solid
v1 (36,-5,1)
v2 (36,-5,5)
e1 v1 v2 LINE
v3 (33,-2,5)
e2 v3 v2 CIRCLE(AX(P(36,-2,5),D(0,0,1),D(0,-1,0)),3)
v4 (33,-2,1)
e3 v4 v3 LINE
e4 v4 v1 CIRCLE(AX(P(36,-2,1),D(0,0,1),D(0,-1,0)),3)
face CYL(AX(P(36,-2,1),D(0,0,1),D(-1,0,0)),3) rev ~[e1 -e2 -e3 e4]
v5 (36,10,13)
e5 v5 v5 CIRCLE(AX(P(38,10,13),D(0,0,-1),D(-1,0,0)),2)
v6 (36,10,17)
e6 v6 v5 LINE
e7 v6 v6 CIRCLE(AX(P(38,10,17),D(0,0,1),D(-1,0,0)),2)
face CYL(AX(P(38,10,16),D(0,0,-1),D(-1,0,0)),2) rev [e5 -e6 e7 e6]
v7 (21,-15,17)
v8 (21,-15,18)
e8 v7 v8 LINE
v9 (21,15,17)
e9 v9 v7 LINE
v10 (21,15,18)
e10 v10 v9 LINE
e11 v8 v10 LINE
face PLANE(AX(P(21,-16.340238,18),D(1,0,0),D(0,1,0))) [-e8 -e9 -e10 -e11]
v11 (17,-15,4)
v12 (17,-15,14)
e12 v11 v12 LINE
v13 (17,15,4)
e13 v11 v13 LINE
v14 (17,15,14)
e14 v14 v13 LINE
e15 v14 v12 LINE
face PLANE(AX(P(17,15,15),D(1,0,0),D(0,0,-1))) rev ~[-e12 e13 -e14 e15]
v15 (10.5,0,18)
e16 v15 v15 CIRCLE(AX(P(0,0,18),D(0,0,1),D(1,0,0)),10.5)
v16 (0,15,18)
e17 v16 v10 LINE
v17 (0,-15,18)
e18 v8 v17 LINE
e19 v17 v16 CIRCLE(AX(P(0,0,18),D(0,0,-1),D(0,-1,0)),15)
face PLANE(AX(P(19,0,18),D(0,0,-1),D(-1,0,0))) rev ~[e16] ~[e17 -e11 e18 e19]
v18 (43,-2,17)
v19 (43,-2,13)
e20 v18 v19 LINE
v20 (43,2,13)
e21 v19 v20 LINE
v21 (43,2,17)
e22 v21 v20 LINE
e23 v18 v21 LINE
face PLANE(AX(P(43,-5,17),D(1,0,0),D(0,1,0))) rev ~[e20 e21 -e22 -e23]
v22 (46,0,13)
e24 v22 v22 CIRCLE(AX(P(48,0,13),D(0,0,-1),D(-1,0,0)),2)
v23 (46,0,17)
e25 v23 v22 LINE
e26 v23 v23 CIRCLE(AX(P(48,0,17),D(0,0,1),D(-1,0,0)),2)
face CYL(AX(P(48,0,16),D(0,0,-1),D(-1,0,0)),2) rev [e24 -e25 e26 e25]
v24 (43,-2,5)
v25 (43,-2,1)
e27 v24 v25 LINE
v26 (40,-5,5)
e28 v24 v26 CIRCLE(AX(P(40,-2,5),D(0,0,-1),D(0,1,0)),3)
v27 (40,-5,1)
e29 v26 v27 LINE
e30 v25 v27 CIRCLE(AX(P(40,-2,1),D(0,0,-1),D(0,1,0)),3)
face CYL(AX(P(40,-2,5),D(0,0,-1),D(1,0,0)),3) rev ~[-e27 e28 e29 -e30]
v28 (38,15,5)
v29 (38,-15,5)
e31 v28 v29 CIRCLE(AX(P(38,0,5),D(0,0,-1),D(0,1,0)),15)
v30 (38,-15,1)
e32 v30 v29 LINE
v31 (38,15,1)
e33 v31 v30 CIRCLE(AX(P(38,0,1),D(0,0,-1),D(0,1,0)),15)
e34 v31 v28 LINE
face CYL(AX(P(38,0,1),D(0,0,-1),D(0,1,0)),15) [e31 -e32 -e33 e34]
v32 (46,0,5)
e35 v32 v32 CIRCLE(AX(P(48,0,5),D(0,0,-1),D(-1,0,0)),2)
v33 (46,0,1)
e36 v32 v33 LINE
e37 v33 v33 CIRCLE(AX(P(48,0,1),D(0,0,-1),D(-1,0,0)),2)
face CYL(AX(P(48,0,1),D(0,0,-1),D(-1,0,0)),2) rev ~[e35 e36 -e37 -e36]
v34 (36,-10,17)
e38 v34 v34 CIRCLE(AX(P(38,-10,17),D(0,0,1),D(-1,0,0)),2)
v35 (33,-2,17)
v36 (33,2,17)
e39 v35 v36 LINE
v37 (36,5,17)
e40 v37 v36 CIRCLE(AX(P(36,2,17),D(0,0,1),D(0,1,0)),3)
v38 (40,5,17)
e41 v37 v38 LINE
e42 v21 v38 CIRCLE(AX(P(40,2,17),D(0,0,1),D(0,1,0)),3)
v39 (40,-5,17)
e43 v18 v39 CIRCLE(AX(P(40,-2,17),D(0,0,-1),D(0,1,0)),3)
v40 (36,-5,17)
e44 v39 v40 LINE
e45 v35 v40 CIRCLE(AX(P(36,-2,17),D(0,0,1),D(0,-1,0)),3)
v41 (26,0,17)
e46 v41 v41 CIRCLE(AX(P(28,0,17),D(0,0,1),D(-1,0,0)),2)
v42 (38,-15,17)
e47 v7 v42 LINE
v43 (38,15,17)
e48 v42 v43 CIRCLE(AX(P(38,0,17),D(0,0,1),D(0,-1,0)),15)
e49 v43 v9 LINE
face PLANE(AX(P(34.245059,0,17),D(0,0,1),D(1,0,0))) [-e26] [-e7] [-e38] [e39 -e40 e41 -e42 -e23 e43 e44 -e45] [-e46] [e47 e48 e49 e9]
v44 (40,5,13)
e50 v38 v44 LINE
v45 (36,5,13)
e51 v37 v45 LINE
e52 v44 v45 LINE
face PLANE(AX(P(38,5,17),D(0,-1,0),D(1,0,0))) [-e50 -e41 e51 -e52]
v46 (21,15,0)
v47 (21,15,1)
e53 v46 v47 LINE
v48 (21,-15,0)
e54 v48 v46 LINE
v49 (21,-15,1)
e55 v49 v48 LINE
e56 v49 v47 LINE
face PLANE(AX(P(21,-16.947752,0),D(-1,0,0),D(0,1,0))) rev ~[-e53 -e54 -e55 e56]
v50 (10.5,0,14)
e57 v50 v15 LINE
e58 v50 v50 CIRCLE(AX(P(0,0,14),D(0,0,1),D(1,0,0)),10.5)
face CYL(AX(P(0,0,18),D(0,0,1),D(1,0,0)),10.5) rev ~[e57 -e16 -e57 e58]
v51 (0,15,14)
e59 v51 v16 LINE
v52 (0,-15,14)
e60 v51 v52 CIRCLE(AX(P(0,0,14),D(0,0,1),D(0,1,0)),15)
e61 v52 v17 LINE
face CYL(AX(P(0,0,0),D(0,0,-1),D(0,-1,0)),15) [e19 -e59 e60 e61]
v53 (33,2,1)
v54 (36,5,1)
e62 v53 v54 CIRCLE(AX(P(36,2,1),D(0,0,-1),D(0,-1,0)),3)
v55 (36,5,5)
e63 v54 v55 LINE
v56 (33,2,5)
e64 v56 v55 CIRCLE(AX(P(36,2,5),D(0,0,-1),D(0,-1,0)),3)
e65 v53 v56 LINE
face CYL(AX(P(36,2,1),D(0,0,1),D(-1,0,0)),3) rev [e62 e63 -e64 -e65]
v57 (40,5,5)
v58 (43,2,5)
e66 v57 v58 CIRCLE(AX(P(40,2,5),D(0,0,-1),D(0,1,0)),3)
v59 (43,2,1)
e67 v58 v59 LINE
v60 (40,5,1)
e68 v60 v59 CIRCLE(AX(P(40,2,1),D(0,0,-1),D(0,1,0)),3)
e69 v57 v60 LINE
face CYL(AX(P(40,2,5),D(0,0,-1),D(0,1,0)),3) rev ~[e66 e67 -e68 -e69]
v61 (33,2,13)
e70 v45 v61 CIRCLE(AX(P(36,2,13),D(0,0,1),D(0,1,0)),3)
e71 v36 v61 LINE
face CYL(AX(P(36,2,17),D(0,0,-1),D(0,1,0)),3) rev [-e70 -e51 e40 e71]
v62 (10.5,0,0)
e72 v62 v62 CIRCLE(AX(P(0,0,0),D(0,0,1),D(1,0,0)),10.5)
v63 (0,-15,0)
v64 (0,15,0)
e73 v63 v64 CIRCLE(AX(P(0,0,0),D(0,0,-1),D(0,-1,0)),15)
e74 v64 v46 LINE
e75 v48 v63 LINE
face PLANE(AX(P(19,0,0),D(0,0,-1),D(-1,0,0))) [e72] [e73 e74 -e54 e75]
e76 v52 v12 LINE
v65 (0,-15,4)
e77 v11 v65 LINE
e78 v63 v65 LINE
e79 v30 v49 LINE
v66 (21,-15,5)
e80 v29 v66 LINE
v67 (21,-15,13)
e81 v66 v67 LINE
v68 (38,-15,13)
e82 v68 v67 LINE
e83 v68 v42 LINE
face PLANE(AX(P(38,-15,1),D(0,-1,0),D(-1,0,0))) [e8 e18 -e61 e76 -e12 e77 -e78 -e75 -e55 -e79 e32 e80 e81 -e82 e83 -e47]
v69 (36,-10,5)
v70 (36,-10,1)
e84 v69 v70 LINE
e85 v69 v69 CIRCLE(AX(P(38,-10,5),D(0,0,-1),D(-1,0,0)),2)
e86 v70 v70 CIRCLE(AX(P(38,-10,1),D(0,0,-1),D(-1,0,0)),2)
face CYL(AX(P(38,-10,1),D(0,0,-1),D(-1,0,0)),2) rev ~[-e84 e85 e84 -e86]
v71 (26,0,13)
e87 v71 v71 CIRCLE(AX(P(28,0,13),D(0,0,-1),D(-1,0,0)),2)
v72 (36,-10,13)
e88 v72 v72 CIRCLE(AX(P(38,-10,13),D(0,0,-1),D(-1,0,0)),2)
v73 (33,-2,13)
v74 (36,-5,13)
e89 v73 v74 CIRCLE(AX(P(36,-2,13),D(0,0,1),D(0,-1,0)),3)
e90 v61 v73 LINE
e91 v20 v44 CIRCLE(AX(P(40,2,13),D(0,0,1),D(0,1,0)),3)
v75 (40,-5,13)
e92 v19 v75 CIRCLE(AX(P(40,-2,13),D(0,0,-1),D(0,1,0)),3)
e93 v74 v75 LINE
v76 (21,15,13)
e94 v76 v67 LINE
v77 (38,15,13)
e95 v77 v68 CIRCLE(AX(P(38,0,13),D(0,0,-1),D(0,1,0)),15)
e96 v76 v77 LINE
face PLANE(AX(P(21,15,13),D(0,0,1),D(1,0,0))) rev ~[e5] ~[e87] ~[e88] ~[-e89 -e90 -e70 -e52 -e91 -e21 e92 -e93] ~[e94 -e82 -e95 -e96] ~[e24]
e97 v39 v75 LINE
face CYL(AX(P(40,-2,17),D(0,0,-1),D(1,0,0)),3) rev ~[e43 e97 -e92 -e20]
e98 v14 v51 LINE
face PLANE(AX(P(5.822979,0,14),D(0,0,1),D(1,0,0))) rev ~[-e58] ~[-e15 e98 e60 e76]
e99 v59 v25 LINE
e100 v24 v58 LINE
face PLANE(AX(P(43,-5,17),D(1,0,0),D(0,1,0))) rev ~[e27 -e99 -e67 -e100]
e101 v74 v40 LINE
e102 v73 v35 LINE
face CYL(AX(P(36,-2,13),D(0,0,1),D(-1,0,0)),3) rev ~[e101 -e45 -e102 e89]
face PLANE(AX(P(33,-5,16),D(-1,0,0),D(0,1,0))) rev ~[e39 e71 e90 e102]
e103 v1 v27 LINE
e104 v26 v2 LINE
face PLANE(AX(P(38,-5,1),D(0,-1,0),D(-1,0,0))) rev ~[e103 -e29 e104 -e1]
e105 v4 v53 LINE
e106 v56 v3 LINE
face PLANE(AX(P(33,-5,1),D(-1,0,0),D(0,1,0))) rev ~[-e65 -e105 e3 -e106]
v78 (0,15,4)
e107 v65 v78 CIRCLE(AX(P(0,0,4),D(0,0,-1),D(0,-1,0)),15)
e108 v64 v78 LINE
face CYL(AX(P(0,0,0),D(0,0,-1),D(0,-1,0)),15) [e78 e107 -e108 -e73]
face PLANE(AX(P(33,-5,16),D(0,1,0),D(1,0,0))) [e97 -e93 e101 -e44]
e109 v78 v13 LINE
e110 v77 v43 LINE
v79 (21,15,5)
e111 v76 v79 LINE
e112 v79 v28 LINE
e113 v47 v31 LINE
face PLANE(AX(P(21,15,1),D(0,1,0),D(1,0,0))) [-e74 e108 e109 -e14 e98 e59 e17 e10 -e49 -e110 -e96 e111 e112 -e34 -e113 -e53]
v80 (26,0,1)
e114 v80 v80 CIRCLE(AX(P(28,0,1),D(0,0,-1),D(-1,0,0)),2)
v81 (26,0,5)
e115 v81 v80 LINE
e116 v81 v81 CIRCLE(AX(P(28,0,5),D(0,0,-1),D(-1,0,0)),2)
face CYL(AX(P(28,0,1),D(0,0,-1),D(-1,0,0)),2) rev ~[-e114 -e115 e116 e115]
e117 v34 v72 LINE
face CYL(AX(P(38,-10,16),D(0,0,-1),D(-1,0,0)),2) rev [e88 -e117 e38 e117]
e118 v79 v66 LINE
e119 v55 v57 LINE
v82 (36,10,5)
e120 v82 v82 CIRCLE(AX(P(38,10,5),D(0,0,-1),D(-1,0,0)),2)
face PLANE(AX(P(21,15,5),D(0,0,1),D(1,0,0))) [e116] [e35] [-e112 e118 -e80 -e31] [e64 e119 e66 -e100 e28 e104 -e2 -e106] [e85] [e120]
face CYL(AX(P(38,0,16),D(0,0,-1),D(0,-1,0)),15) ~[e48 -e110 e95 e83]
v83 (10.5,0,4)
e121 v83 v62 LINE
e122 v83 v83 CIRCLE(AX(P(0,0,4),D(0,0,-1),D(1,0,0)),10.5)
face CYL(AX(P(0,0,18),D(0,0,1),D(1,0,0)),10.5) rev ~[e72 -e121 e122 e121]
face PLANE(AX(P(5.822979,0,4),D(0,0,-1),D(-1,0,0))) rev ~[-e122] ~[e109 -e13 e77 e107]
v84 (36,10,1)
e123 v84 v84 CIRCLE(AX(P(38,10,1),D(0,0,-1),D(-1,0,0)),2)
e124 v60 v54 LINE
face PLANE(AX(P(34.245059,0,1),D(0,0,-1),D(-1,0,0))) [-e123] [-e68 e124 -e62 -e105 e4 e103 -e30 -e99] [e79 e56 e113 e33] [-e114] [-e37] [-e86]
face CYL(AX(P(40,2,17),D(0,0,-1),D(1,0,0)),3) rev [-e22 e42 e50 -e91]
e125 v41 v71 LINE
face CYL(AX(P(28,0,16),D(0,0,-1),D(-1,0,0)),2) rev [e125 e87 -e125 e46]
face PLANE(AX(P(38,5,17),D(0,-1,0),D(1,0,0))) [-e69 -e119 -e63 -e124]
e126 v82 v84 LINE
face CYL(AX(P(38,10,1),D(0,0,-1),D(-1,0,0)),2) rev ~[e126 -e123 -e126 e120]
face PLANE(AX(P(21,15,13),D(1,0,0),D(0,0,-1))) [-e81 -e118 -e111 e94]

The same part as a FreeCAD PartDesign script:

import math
import FreeCAD as App
import Part
import Sketcher
from FreeCAD import Vector


def edges_at(feature, points):
    """Names of the edges that pass closest to the given points."""
    edges = feature.Shape.Edges
    near = lambda p: min(range(len(edges)), key=lambda i: edges[i].distToShape(Part.Vertex(*p))[0])
    return sorted({f"Edge{near(p) + 1}" for p in points})


def add_polygon(sketch, points):
    """Adds a closed chain of lines whose ends are joined by coincident constraints."""
    first, n = sketch.GeometryCount, len(points)
    for a, b in zip(points, points[1:] + points[:1]):
        sketch.addGeometry(Part.LineSegment(App.Vector(*a, 0), App.Vector(*b, 0)), False)
    for i in range(n):
        sketch.addConstraint(Sketcher.Constraint("Coincident", first + i, 2, first + (i + 1) % n, 1))

doc = App.newDocument("Part")
params = doc.addObject("Spreadsheet::Sheet", "Params")
for row, (alias, value) in enumerate([
    ("sketch1_radius", "15 mm"),
    ("sketch1_width", "38 mm"),
    ("pad1_length", "18 mm"),
    ("sketch2_width", "32 mm"),
    ("sketch2_height", "12 mm"),
    ("pocket1_length", "34 mm"),
    ("sketch3_width", "32 mm"),
    ("sketch3_height", "8 mm"),
    ("pocket2_length", "34 mm"),
    ("sketch4_diameter", "21 mm"),
    ("pocket3_length", "34 mm"),
    ("pocket4_length", "2 mm"),
    ("pocket5_length", "2 mm"),
    ("sketch7_diameter", "4 mm"),
    ("pocket6_length", "20 mm"),
    ("sketch8_width", "5 mm"),
    ("sketch8_height", "10 mm"),
    ("pocket7_length", "20 mm"),
    ("sketch9_diameter", "21 mm"),
    ("sketch9_radius", "15 mm"),
    ("sketch9_width", "21 mm"),
    ("pad2_length", "4 mm"),
    ("sketch10_diameter", "21 mm"),
    ("sketch10_radius", "15 mm"),
    ("sketch10_width", "21 mm"),
    ("pad3_length", "4 mm"),
    ("sketch11_diameter", "4 mm"),
    ("sketch11_radius", "15 mm"),
    ("sketch11_width", "17 mm"),
    ("sketch11_width2", "5 mm"),
    ("sketch11_height", "10 mm"),
    ("pad4_length", "1 mm"),
    ("sketch12_diameter", "4 mm"),
    ("sketch12_radius", "15 mm"),
    ("sketch12_width", "17 mm"),
    ("sketch12_width2", "5 mm"),
    ("sketch12_height", "10 mm"),
    ("pad5_length", "1 mm"),
    ("sketch13_width", "5 mm"),
    ("sketch13_height", "10 mm"),
    ("pocket8_length", "19 mm"),
    ("fillet_radius", "3 mm"),
], start=1):
    params.set(f"A{row}", alias)
    params.set(f"B{row}", "=" + value)
    params.setAlias(f"B{row}", alias)

body = doc.addObject("PartDesign::Body", "Body")

sketch1 = doc.addObject("Sketcher::SketchObject", "Sketch")
body.addObject(sketch1)
sketch1.AttachmentSupport = (doc.XY_Plane, [""])
sketch1.MapMode = "FlatFace"
sketch1.addGeometry(Part.LineSegment(Vector(38, 15, 0), Vector(0, 15, 0)), False)
sketch1.addGeometry(Part.ArcOfCircle(Part.Circle(Vector(0, 0, 0), Vector(0, 0, 1), 15), math.radians(90), math.radians(270)), False)
sketch1.addGeometry(Part.LineSegment(Vector(0, -15, 0), Vector(38, -15, 0)), False)
sketch1.addGeometry(Part.ArcOfCircle(Part.Circle(Vector(38, 0, 0), Vector(0, 0, 1), 15), math.radians(-90), math.radians(90)), False)
sketch1.addConstraint(Sketcher.Constraint("Tangent", 0, 2, 1, 1))
sketch1.addConstraint(Sketcher.Constraint("Tangent", 1, 2, 2, 1))
sketch1.addConstraint(Sketcher.Constraint("Tangent", 2, 2, 3, 1))
sketch1.addConstraint(Sketcher.Constraint("Tangent", 3, 2, 0, 1))
sketch1.addConstraint(Sketcher.Constraint("Horizontal", 0))
sketch1.addConstraint(Sketcher.Constraint("Horizontal", 2))
sketch1.addConstraint(Sketcher.Constraint("Coincident", 1, 3, -1, 1))
sketch1.addConstraint(Sketcher.Constraint("Radius", 1, 15.0))
sketch1.addConstraint(Sketcher.Constraint("DistanceX", 0, 2, 0, 1, 38.0))
sketch1.setExpression("Constraints[7]", "Params.sketch1_radius")
sketch1.setExpression("Constraints[8]", "Params.sketch1_width")
pad1 = doc.addObject("PartDesign::Pad", "Pad")
body.addObject(pad1)
pad1.Profile = sketch1
pad1.setExpression("Length", "Params.pad1_length")

sketch2 = doc.addObject("Sketcher::SketchObject", "Sketch001")
body.addObject(sketch2)
sketch2.AttachmentSupport = (doc.XZ_Plane, [""])
sketch2.MapMode = "FlatFace"
sketch2.AttachmentOffset = App.Placement(Vector(0, 0, -15), App.Rotation())
add_polygon(sketch2, [(-15, 3), (-15, 15), (17, 15), (17, 3)])
sketch2.addConstraint(Sketcher.Constraint("Vertical", 0))
sketch2.addConstraint(Sketcher.Constraint("Horizontal", 1))
sketch2.addConstraint(Sketcher.Constraint("Vertical", 2))
sketch2.addConstraint(Sketcher.Constraint("Horizontal", 3))
sketch2.addConstraint(Sketcher.Constraint("DistanceX", 1, 1, 1, 2, 32.0))
sketch2.addConstraint(Sketcher.Constraint("DistanceY", 0, 1, 0, 2, 12.0))
sketch2.addConstraint(Sketcher.Constraint("DistanceX", 0, 2, -1, 1, 15.0))
sketch2.addConstraint(Sketcher.Constraint("DistanceY", -1, 1, 0, 2, 15.0))
sketch2.setExpression("Constraints[8]", "Params.sketch2_width")
sketch2.setExpression("Constraints[9]", "Params.sketch2_height")
pocket1 = doc.addObject("PartDesign::Pocket", "Pocket")
body.addObject(pocket1)
pocket1.Profile = sketch2
pocket1.setExpression("Length", "Params.pocket1_length")
pocket1.Reversed = True

sketch3 = doc.addObject("Sketcher::SketchObject", "Sketch002")
body.addObject(sketch3)
sketch3.AttachmentSupport = (doc.XZ_Plane, [""])
sketch3.MapMode = "FlatFace"
sketch3.AttachmentOffset = App.Placement(Vector(0, 0, -15), App.Rotation())
add_polygon(sketch3, [(21, 5), (21, 13), (53, 13), (53, 5)])
sketch3.addConstraint(Sketcher.Constraint("Vertical", 0))
sketch3.addConstraint(Sketcher.Constraint("Horizontal", 1))
sketch3.addConstraint(Sketcher.Constraint("Vertical", 2))
sketch3.addConstraint(Sketcher.Constraint("Horizontal", 3))
sketch3.addConstraint(Sketcher.Constraint("DistanceX", 1, 1, 1, 2, 32.0))
sketch3.addConstraint(Sketcher.Constraint("DistanceY", 0, 1, 0, 2, 8.0))
sketch3.addConstraint(Sketcher.Constraint("DistanceX", -1, 1, 0, 2, 21.0))
sketch3.addConstraint(Sketcher.Constraint("DistanceY", -1, 1, 0, 2, 13.0))
sketch3.setExpression("Constraints[8]", "Params.sketch3_width")
sketch3.setExpression("Constraints[9]", "Params.sketch3_height")
pocket2 = doc.addObject("PartDesign::Pocket", "Pocket001")
body.addObject(pocket2)
pocket2.Profile = sketch3
pocket2.setExpression("Length", "Params.pocket2_length")
pocket2.Reversed = True

sketch4 = doc.addObject("Sketcher::SketchObject", "Sketch003")
body.addObject(sketch4)
sketch4.AttachmentSupport = (doc.XY_Plane, [""])
sketch4.MapMode = "FlatFace"
sketch4.AttachmentOffset = App.Placement(Vector(0, 0, 18), App.Rotation())
sketch4.addGeometry(Part.Circle(Vector(0, 0, 0), Vector(0, 0, 1), 10.5), False)
sketch4.addConstraint(Sketcher.Constraint("Coincident", 0, 3, -1, 1))
sketch4.addConstraint(Sketcher.Constraint("Diameter", 0, 21.0))
sketch4.setExpression("Constraints[1]", "Params.sketch4_diameter")
pocket3 = doc.addObject("PartDesign::Pocket", "Pocket002")
body.addObject(pocket3)
pocket3.Profile = sketch4
pocket3.setExpression("Length", "Params.pocket3_length")

sketch5 = doc.addObject("Sketcher::SketchObject", "Sketch004")
body.addObject(sketch5)
sketch5.AttachmentSupport = (doc.XY_Plane, [""])
sketch5.MapMode = "FlatFace"
sketch5.AttachmentOffset = App.Placement(Vector(0, 0, 18), App.Rotation())
add_polygon(sketch5, [(21, 15), (21, -16.340238), (57.797592, -16.340238), (57.797592, 15)])
sketch5.addConstraint(Sketcher.Constraint("Vertical", 0))
sketch5.addConstraint(Sketcher.Constraint("Horizontal", 1))
sketch5.addConstraint(Sketcher.Constraint("Vertical", 2))
sketch5.addConstraint(Sketcher.Constraint("Horizontal", 3))
sketch5.addConstraint(Sketcher.Constraint("DistanceX", -1, 1, 0, 2, 21.0))
sketch5.addConstraint(Sketcher.Constraint("DistanceY", -1, 1, 2, 2, 15.0))
sketch5.addConstraint(Sketcher.Constraint("DistanceX", 1, 1, 1, 2, 36.797592))
sketch5.addConstraint(Sketcher.Constraint("DistanceY", 0, 2, 0, 1, 31.340238))
pocket4 = doc.addObject("PartDesign::Pocket", "Pocket003")
body.addObject(pocket4)
pocket4.Profile = sketch5
pocket4.setExpression("Length", "Params.pocket4_length")

sketch6 = doc.addObject("Sketcher::SketchObject", "Sketch005")
body.addObject(sketch6)
sketch6.AttachmentSupport = (doc.XY_Plane, [""])
sketch6.MapMode = "FlatFace"
add_polygon(sketch6, [(69.194095, 15), (69.194095, -16.947752), (21, -16.947752), (21, 15)])
sketch6.addConstraint(Sketcher.Constraint("Vertical", 0))
sketch6.addConstraint(Sketcher.Constraint("Horizontal", 1))
sketch6.addConstraint(Sketcher.Constraint("Vertical", 2))
sketch6.addConstraint(Sketcher.Constraint("Horizontal", 3))
sketch6.addConstraint(Sketcher.Constraint("DistanceX", -1, 1, 1, 2, 21.0))
sketch6.addConstraint(Sketcher.Constraint("DistanceY", -1, 1, 2, 2, 15.0))
sketch6.addConstraint(Sketcher.Constraint("DistanceX", 1, 2, 1, 1, 48.194095))
sketch6.addConstraint(Sketcher.Constraint("DistanceY", 0, 2, 0, 1, 31.947752))
pocket5 = doc.addObject("PartDesign::Pocket", "Pocket004")
body.addObject(pocket5)
pocket5.Profile = sketch6
pocket5.setExpression("Length", "Params.pocket5_length")
pocket5.Reversed = True

sketch7 = doc.addObject("Sketcher::SketchObject", "Sketch006")
body.addObject(sketch7)
sketch7.AttachmentSupport = (doc.XY_Plane, [""])
sketch7.MapMode = "FlatFace"
sketch7.AttachmentOffset = App.Placement(Vector(0, 0, 2), App.Rotation())
sketch7.addGeometry(Part.Circle(Vector(48, 0, 0), Vector(0, 0, 1), 2), False)
sketch7.addGeometry(Part.Circle(Vector(38, 10, 0), Vector(0, 0, 1), 2), False)
sketch7.addGeometry(Part.Circle(Vector(28, 0, 0), Vector(0, 0, 1), 2), False)
sketch7.addGeometry(Part.Circle(Vector(38, -10, 0), Vector(0, 0, 1), 2), False)
sketch7.addConstraint(Sketcher.Constraint("Equal", 0, 1))
sketch7.addConstraint(Sketcher.Constraint("Equal", 1, 2))
sketch7.addConstraint(Sketcher.Constraint("Equal", 2, 3))
sketch7.addConstraint(Sketcher.Constraint("Symmetric", 1, 3, 3, 3, -1))
sketch7.addConstraint(Sketcher.Constraint("PointOnObject", 0, 3, -1))
sketch7.addConstraint(Sketcher.Constraint("PointOnObject", 2, 3, -1))
sketch7.addConstraint(Sketcher.Constraint("Diameter", 0, 4.0))
sketch7.addConstraint(Sketcher.Constraint("DistanceX", -1, 1, 0, 3, 48.0))
sketch7.addConstraint(Sketcher.Constraint("DistanceX", -1, 1, 1, 3, 38.0))
sketch7.addConstraint(Sketcher.Constraint("DistanceY", -1, 1, 1, 3, 10.0))
sketch7.addConstraint(Sketcher.Constraint("DistanceX", -1, 1, 2, 3, 28.0))
sketch7.setExpression("Constraints[6]", "Params.sketch7_diameter")
pocket6 = doc.addObject("PartDesign::Pocket", "Pocket005")
body.addObject(pocket6)
pocket6.Profile = sketch7
pocket6.setExpression("Length", "Params.pocket6_length")
pocket6.Reversed = True

sketch8 = doc.addObject("Sketcher::SketchObject", "Sketch007")
body.addObject(sketch8)
sketch8.AttachmentSupport = (doc.XY_Plane, [""])
sketch8.MapMode = "FlatFace"
sketch8.AttachmentOffset = App.Placement(Vector(0, 0, 2), App.Rotation())
add_polygon(sketch8, [(38, 5), (38, -5), (33, -5), (33, 5)])
sketch8.addConstraint(Sketcher.Constraint("Vertical", 0))
sketch8.addConstraint(Sketcher.Constraint("Horizontal", 1))
sketch8.addConstraint(Sketcher.Constraint("Vertical", 2))
sketch8.addConstraint(Sketcher.Constraint("Horizontal", 3))
sketch8.addConstraint(Sketcher.Constraint("DistanceX", 1, 2, 1, 1, 5.0))
sketch8.addConstraint(Sketcher.Constraint("DistanceY", 0, 2, 0, 1, 10.0))
sketch8.addConstraint(Sketcher.Constraint("DistanceX", -1, 1, 0, 2, 38.0))
sketch8.addConstraint(Sketcher.Constraint("DistanceY", 0, 2, -1, 1, 5.0))
sketch8.setExpression("Constraints[8]", "Params.sketch8_width")
sketch8.setExpression("Constraints[9]", "Params.sketch8_height")
pocket7 = doc.addObject("PartDesign::Pocket", "Pocket006")
body.addObject(pocket7)
pocket7.Profile = sketch8
pocket7.setExpression("Length", "Params.pocket7_length")
pocket7.Reversed = True

sketch9 = doc.addObject("Sketcher::SketchObject", "Sketch008")
body.addObject(sketch9)
sketch9.AttachmentSupport = (doc.XY_Plane, [""])
sketch9.MapMode = "FlatFace"
sketch9.addGeometry(Part.LineSegment(Vector(0, 15, 0), Vector(21, 15, 0)), False)
sketch9.addGeometry(Part.LineSegment(Vector(21, 15, 0), Vector(21, -15, 0)), False)
sketch9.addGeometry(Part.LineSegment(Vector(21, -15, 0), Vector(0, -15, 0)), False)
sketch9.addGeometry(Part.ArcOfCircle(Part.Circle(Vector(0, 0, 0), Vector(0, 0, 1), 15), math.radians(90), math.radians(270)), False)
sketch9.addGeometry(Part.Circle(Vector(0, 0, 0), Vector(0, 0, 1), 10.5), False)
sketch9.addConstraint(Sketcher.Constraint("Coincident", 0, 2, 1, 1))
sketch9.addConstraint(Sketcher.Constraint("Coincident", 1, 2, 2, 1))
sketch9.addConstraint(Sketcher.Constraint("Tangent", 2, 2, 3, 2))
sketch9.addConstraint(Sketcher.Constraint("Tangent", 3, 1, 0, 1))
sketch9.addConstraint(Sketcher.Constraint("Horizontal", 0))
sketch9.addConstraint(Sketcher.Constraint("Vertical", 1))
sketch9.addConstraint(Sketcher.Constraint("Horizontal", 2))
sketch9.addConstraint(Sketcher.Constraint("Coincident", 3, 3, -1, 1))
sketch9.addConstraint(Sketcher.Constraint("Coincident", 4, 3, -1, 1))
sketch9.addConstraint(Sketcher.Constraint("Diameter", 4, 21.0))
sketch9.addConstraint(Sketcher.Constraint("Radius", 3, 15.0))
sketch9.addConstraint(Sketcher.Constraint("DistanceX", 0, 1, 0, 2, 21.0))
sketch9.setExpression("Constraints[9]", "Params.sketch9_diameter")
sketch9.setExpression("Constraints[10]", "Params.sketch9_radius")
sketch9.setExpression("Constraints[11]", "Params.sketch9_width")
pad2 = doc.addObject("PartDesign::Pad", "Pad001")
body.addObject(pad2)
pad2.Profile = sketch9
pad2.setExpression("Length", "Params.pad2_length")

sketch10 = doc.addObject("Sketcher::SketchObject", "Sketch009")
body.addObject(sketch10)
sketch10.AttachmentSupport = (doc.XY_Plane, [""])
sketch10.MapMode = "FlatFace"
sketch10.AttachmentOffset = App.Placement(Vector(0, 0, 18), App.Rotation())
sketch10.addGeometry(Part.LineSegment(Vector(21, -15, 0), Vector(21, 15, 0)), False)
sketch10.addGeometry(Part.LineSegment(Vector(21, 15, 0), Vector(0, 15, 0)), False)
sketch10.addGeometry(Part.ArcOfCircle(Part.Circle(Vector(0, 0, 0), Vector(0, 0, 1), 15), math.radians(90), math.radians(270)), False)
sketch10.addGeometry(Part.LineSegment(Vector(0, -15, 0), Vector(21, -15, 0)), False)
sketch10.addGeometry(Part.Circle(Vector(0, 0, 0), Vector(0, 0, 1), 10.5), False)
sketch10.addConstraint(Sketcher.Constraint("Coincident", 0, 2, 1, 1))
sketch10.addConstraint(Sketcher.Constraint("Tangent", 1, 2, 2, 1))
sketch10.addConstraint(Sketcher.Constraint("Tangent", 2, 2, 3, 1))
sketch10.addConstraint(Sketcher.Constraint("Coincident", 3, 2, 0, 1))
sketch10.addConstraint(Sketcher.Constraint("Vertical", 0))
sketch10.addConstraint(Sketcher.Constraint("Horizontal", 1))
sketch10.addConstraint(Sketcher.Constraint("Horizontal", 3))
sketch10.addConstraint(Sketcher.Constraint("Coincident", 2, 3, -1, 1))
sketch10.addConstraint(Sketcher.Constraint("Coincident", 4, 3, -1, 1))
sketch10.addConstraint(Sketcher.Constraint("Diameter", 4, 21.0))
sketch10.addConstraint(Sketcher.Constraint("Radius", 2, 15.0))
sketch10.addConstraint(Sketcher.Constraint("DistanceX", 1, 2, 1, 1, 21.0))
sketch10.setExpression("Constraints[9]", "Params.sketch10_diameter")
sketch10.setExpression("Constraints[10]", "Params.sketch10_radius")
sketch10.setExpression("Constraints[11]", "Params.sketch10_width")
pad3 = doc.addObject("PartDesign::Pad", "Pad002")
body.addObject(pad3)
pad3.Profile = sketch10
pad3.setExpression("Length", "Params.pad3_length")
pad3.Reversed = True

sketch11 = doc.addObject("Sketcher::SketchObject", "Sketch010")
body.addObject(sketch11)
sketch11.AttachmentSupport = (doc.XY_Plane, [""])
sketch11.MapMode = "FlatFace"
sketch11.AttachmentOffset = App.Placement(Vector(0, 0, 16), App.Rotation())
sketch11.addGeometry(Part.LineSegment(Vector(21, -15, 0), Vector(38, -15, 0)), False)
sketch11.addGeometry(Part.ArcOfCircle(Part.Circle(Vector(38, 0, 0), Vector(0, 0, 1), 15), math.radians(-90), math.radians(90)), False)
sketch11.addGeometry(Part.LineSegment(Vector(38, 15, 0), Vector(21, 15, 0)), False)
sketch11.addGeometry(Part.LineSegment(Vector(21, 15, 0), Vector(21, -15, 0)), False)
sketch11.addGeometry(Part.Circle(Vector(38, -10, 0), Vector(0, 0, 1), 2), False)
sketch11.addGeometry(Part.Circle(Vector(28, 0, 0), Vector(0, 0, 1), 2), False)
add_polygon(sketch11, [(38, -5), (33, -5), (33, 5), (38, 5)])
sketch11.addGeometry(Part.Circle(Vector(48, 0, 0), Vector(0, 0, 1), 2), False)
sketch11.addGeometry(Part.Circle(Vector(38, 10, 0), Vector(0, 0, 1), 2), False)
sketch11.addConstraint(Sketcher.Constraint("Tangent", 0, 2, 1, 1))
sketch11.addConstraint(Sketcher.Constraint("Tangent", 1, 2, 2, 1))
sketch11.addConstraint(Sketcher.Constraint("Coincident", 2, 2, 3, 1))
sketch11.addConstraint(Sketcher.Constraint("Coincident", 3, 2, 0, 1))
sketch11.addConstraint(Sketcher.Constraint("Horizontal", 0))
sketch11.addConstraint(Sketcher.Constraint("Horizontal", 2))
sketch11.addConstraint(Sketcher.Constraint("Vertical", 3))
sketch11.addConstraint(Sketcher.Constraint("Horizontal", 6))
sketch11.addConstraint(Sketcher.Constraint("Vertical", 7))
sketch11.addConstraint(Sketcher.Constraint("Horizontal", 8))
sketch11.addConstraint(Sketcher.Constraint("Vertical", 9))
sketch11.addConstraint(Sketcher.Constraint("Equal", 4, 5))
sketch11.addConstraint(Sketcher.Constraint("Equal", 5, 10))
sketch11.addConstraint(Sketcher.Constraint("Equal", 10, 11))
sketch11.addConstraint(Sketcher.Constraint("Symmetric", 4, 3, 11, 3, -1))
sketch11.addConstraint(Sketcher.Constraint("PointOnObject", 1, 3, -1))
sketch11.addConstraint(Sketcher.Constraint("PointOnObject", 5, 3, -1))
sketch11.addConstraint(Sketcher.Constraint("PointOnObject", 10, 3, -1))
sketch11.addConstraint(Sketcher.Constraint("Vertical", 1, 3, 4, 3))
sketch11.addConstraint(Sketcher.Constraint("Vertical", 1, 2, 8, 2))
sketch11.addConstraint(Sketcher.Constraint("Diameter", 4, 4.0))
sketch11.addConstraint(Sketcher.Constraint("Radius", 1, 15.0))
sketch11.addConstraint(Sketcher.Constraint("DistanceX", 0, 1, 0, 2, 17.0))
sketch11.addConstraint(Sketcher.Constraint("DistanceX", 6, 2, 6, 1, 5.0))
sketch11.addConstraint(Sketcher.Constraint("DistanceY", 7, 1, 7, 2, 10.0))
sketch11.addConstraint(Sketcher.Constraint("DistanceX", -1, 1, 1, 3, 38.0))
sketch11.addConstraint(Sketcher.Constraint("DistanceY", 4, 3, -1, 1, 10.0))
sketch11.addConstraint(Sketcher.Constraint("DistanceX", -1, 1, 5, 3, 28.0))
sketch11.addConstraint(Sketcher.Constraint("DistanceX", -1, 1, 10, 3, 48.0))
sketch11.addConstraint(Sketcher.Constraint("DistanceY", 6, 2, -1, 1, 5.0))
sketch11.setExpression("Constraints[24]", "Params.sketch11_diameter")
sketch11.setExpression("Constraints[25]", "Params.sketch11_radius")
sketch11.setExpression("Constraints[26]", "Params.sketch11_width")
sketch11.setExpression("Constraints[27]", "Params.sketch11_width2")
sketch11.setExpression("Constraints[28]", "Params.sketch11_height")
pad4 = doc.addObject("PartDesign::Pad", "Pad003")
body.addObject(pad4)
pad4.Profile = sketch11
pad4.setExpression("Length", "Params.pad4_length")

sketch12 = doc.addObject("Sketcher::SketchObject", "Sketch011")
body.addObject(sketch12)
sketch12.AttachmentSupport = (doc.XY_Plane, [""])
sketch12.MapMode = "FlatFace"
sketch12.AttachmentOffset = App.Placement(Vector(0, 0, 1), App.Rotation())
sketch12.addGeometry(Part.LineSegment(Vector(21, -15, 0), Vector(21, 15, 0)), False)
sketch12.addGeometry(Part.LineSegment(Vector(21, 15, 0), Vector(38, 15, 0)), False)
sketch12.addGeometry(Part.ArcOfCircle(Part.Circle(Vector(38, 0, 0), Vector(0, 0, 1), 15), math.radians(-90), math.radians(90)), False)
sketch12.addGeometry(Part.LineSegment(Vector(38, -15, 0), Vector(21, -15, 0)), False)
sketch12.addGeometry(Part.Circle(Vector(38, -10, 0), Vector(0, 0, 1), 2), False)
sketch12.addGeometry(Part.Circle(Vector(48, 0, 0), Vector(0, 0, 1), 2), False)
add_polygon(sketch12, [(33, -5), (38, -5), (38, 5), (33, 5)])
sketch12.addGeometry(Part.Circle(Vector(28, 0, 0), Vector(0, 0, 1), 2), False)
sketch12.addGeometry(Part.Circle(Vector(38, 10, 0), Vector(0, 0, 1), 2), False)
sketch12.addConstraint(Sketcher.Constraint("Coincident", 0, 2, 1, 1))
sketch12.addConstraint(Sketcher.Constraint("Tangent", 1, 2, 2, 2))
sketch12.addConstraint(Sketcher.Constraint("Tangent", 2, 1, 3, 1))
sketch12.addConstraint(Sketcher.Constraint("Coincident", 3, 2, 0, 1))
sketch12.addConstraint(Sketcher.Constraint("Vertical", 0))
sketch12.addConstraint(Sketcher.Constraint("Horizontal", 1))
sketch12.addConstraint(Sketcher.Constraint("Horizontal", 3))
sketch12.addConstraint(Sketcher.Constraint("Horizontal", 6))
sketch12.addConstraint(Sketcher.Constraint("Vertical", 7))
sketch12.addConstraint(Sketcher.Constraint("Horizontal", 8))
sketch12.addConstraint(Sketcher.Constraint("Vertical", 9))
sketch12.addConstraint(Sketcher.Constraint("Equal", 4, 5))
sketch12.addConstraint(Sketcher.Constraint("Equal", 5, 10))
sketch12.addConstraint(Sketcher.Constraint("Equal", 10, 11))
sketch12.addConstraint(Sketcher.Constraint("Symmetric", 4, 3, 11, 3, -1))
sketch12.addConstraint(Sketcher.Constraint("PointOnObject", 2, 3, -1))
sketch12.addConstraint(Sketcher.Constraint("PointOnObject", 5, 3, -1))
sketch12.addConstraint(Sketcher.Constraint("PointOnObject", 10, 3, -1))
sketch12.addConstraint(Sketcher.Constraint("Vertical", 2, 3, 4, 3))
sketch12.addConstraint(Sketcher.Constraint("Vertical", 2, 1, 6, 2))
sketch12.addConstraint(Sketcher.Constraint("Diameter", 4, 4.0))
sketch12.addConstraint(Sketcher.Constraint("Radius", 2, 15.0))
sketch12.addConstraint(Sketcher.Constraint("DistanceX", 1, 1, 1, 2, 17.0))
sketch12.addConstraint(Sketcher.Constraint("DistanceX", 6, 1, 6, 2, 5.0))
sketch12.addConstraint(Sketcher.Constraint("DistanceY", 7, 1, 7, 2, 10.0))
sketch12.addConstraint(Sketcher.Constraint("DistanceX", -1, 1, 2, 3, 38.0))
sketch12.addConstraint(Sketcher.Constraint("DistanceY", 4, 3, -1, 1, 10.0))
sketch12.addConstraint(Sketcher.Constraint("DistanceX", -1, 1, 5, 3, 48.0))
sketch12.addConstraint(Sketcher.Constraint("DistanceX", -1, 1, 10, 3, 28.0))
sketch12.addConstraint(Sketcher.Constraint("DistanceY", 6, 2, -1, 1, 5.0))
sketch12.setExpression("Constraints[24]", "Params.sketch12_diameter")
sketch12.setExpression("Constraints[25]", "Params.sketch12_radius")
sketch12.setExpression("Constraints[26]", "Params.sketch12_width")
sketch12.setExpression("Constraints[27]", "Params.sketch12_width2")
sketch12.setExpression("Constraints[28]", "Params.sketch12_height")
pad5 = doc.addObject("PartDesign::Pad", "Pad004")
body.addObject(pad5)
pad5.Profile = sketch12
pad5.setExpression("Length", "Params.pad5_length")

sketch13 = doc.addObject("Sketcher::SketchObject", "Sketch012")
body.addObject(sketch13)
sketch13.AttachmentSupport = (doc.XY_Plane, [""])
sketch13.MapMode = "FlatFace"
sketch13.AttachmentOffset = App.Placement(Vector(0, 0, 17), App.Rotation())
add_polygon(sketch13, [(38, 5), (38, -5), (43, -5), (43, 5)])
sketch13.addConstraint(Sketcher.Constraint("Vertical", 0))
sketch13.addConstraint(Sketcher.Constraint("Horizontal", 1))
sketch13.addConstraint(Sketcher.Constraint("Vertical", 2))
sketch13.addConstraint(Sketcher.Constraint("Horizontal", 3))
sketch13.addConstraint(Sketcher.Constraint("DistanceX", 1, 1, 1, 2, 5.0))
sketch13.addConstraint(Sketcher.Constraint("DistanceY", 0, 2, 0, 1, 10.0))
sketch13.addConstraint(Sketcher.Constraint("DistanceX", -1, 1, 0, 2, 38.0))
sketch13.addConstraint(Sketcher.Constraint("DistanceY", 0, 2, -1, 1, 5.0))
sketch13.setExpression("Constraints[8]", "Params.sketch13_width")
sketch13.setExpression("Constraints[9]", "Params.sketch13_height")
pocket8 = doc.addObject("PartDesign::Pocket", "Pocket007")
body.addObject(pocket8)
pocket8.Profile = sketch13
pocket8.setExpression("Length", "Params.pocket8_length")
doc.recompute()

fillet = doc.addObject("PartDesign::Fillet", "Fillet")
body.addObject(fillet)
fillet.Base = (pocket8, edges_at(pocket8, [
    (33, 5, 15),
    (33, 5, 3),
    (33, -5, 15),
    (33, -5, 3),
    (43, 5, 15),
    (43, 5, 3),
    (43, -5, 15),
    (43, -5, 3),
]))
fillet.setExpression("Radius", "Params.fillet_radius")

doc.recompute()
